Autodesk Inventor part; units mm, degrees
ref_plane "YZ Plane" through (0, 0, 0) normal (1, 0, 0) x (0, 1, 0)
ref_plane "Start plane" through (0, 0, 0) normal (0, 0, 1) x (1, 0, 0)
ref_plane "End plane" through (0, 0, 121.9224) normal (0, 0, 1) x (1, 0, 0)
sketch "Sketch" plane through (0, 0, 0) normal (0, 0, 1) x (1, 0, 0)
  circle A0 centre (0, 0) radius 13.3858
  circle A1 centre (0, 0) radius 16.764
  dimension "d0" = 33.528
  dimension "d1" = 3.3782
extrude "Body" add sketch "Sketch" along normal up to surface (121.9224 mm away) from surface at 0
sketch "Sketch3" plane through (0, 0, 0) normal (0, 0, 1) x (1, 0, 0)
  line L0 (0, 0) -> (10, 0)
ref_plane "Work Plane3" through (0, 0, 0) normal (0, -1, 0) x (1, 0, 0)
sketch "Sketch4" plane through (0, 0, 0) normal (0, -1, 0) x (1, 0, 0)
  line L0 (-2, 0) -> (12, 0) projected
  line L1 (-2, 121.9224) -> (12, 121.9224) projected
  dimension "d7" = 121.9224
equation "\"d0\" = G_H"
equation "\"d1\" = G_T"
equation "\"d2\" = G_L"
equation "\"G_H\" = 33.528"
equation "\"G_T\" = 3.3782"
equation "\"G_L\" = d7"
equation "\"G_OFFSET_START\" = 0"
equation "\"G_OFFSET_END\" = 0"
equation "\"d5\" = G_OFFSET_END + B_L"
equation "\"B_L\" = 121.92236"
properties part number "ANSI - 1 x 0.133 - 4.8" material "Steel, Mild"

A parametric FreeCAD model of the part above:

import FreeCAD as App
import Part
import Sketcher
from FreeCAD import Vector
Q = App.Units.Quantity

doc = App.newDocument("Part")
body = doc.addObject("PartDesign::Body", "Body")

# Sketch on XY plane
sketch1 = body.newObject("Sketcher::SketchObject", "Sketch")
sketch1.AttachmentSupport = (doc.getObject("XY_Plane"), [""])
sketch1.MapMode = "FlatFace"
sketch1.addGeometry([
    Part.Circle(Vector(0, 0, 0), Vector(0, 0, 1), 17),
    Part.Circle(Vector(0, 0, 0), Vector(0, 0, 1), 13),
], False)
sketch1.addConstraint([
    Sketcher.Constraint("Coincident", 0, 3, -1, 1),
    Sketcher.Constraint("Coincident", 1, 3, -1, 1),
    Sketcher.Constraint("Diameter", 0, Q("1.32 in")),
    Sketcher.Constraint("Diameter", 1, Q("1.054 in")),
])
pad1 = body.newObject("PartDesign::Pad", "Pad")
pad1.Profile = sketch1
pad1.Length = Q("4.8000945 in")

doc.recompute()
